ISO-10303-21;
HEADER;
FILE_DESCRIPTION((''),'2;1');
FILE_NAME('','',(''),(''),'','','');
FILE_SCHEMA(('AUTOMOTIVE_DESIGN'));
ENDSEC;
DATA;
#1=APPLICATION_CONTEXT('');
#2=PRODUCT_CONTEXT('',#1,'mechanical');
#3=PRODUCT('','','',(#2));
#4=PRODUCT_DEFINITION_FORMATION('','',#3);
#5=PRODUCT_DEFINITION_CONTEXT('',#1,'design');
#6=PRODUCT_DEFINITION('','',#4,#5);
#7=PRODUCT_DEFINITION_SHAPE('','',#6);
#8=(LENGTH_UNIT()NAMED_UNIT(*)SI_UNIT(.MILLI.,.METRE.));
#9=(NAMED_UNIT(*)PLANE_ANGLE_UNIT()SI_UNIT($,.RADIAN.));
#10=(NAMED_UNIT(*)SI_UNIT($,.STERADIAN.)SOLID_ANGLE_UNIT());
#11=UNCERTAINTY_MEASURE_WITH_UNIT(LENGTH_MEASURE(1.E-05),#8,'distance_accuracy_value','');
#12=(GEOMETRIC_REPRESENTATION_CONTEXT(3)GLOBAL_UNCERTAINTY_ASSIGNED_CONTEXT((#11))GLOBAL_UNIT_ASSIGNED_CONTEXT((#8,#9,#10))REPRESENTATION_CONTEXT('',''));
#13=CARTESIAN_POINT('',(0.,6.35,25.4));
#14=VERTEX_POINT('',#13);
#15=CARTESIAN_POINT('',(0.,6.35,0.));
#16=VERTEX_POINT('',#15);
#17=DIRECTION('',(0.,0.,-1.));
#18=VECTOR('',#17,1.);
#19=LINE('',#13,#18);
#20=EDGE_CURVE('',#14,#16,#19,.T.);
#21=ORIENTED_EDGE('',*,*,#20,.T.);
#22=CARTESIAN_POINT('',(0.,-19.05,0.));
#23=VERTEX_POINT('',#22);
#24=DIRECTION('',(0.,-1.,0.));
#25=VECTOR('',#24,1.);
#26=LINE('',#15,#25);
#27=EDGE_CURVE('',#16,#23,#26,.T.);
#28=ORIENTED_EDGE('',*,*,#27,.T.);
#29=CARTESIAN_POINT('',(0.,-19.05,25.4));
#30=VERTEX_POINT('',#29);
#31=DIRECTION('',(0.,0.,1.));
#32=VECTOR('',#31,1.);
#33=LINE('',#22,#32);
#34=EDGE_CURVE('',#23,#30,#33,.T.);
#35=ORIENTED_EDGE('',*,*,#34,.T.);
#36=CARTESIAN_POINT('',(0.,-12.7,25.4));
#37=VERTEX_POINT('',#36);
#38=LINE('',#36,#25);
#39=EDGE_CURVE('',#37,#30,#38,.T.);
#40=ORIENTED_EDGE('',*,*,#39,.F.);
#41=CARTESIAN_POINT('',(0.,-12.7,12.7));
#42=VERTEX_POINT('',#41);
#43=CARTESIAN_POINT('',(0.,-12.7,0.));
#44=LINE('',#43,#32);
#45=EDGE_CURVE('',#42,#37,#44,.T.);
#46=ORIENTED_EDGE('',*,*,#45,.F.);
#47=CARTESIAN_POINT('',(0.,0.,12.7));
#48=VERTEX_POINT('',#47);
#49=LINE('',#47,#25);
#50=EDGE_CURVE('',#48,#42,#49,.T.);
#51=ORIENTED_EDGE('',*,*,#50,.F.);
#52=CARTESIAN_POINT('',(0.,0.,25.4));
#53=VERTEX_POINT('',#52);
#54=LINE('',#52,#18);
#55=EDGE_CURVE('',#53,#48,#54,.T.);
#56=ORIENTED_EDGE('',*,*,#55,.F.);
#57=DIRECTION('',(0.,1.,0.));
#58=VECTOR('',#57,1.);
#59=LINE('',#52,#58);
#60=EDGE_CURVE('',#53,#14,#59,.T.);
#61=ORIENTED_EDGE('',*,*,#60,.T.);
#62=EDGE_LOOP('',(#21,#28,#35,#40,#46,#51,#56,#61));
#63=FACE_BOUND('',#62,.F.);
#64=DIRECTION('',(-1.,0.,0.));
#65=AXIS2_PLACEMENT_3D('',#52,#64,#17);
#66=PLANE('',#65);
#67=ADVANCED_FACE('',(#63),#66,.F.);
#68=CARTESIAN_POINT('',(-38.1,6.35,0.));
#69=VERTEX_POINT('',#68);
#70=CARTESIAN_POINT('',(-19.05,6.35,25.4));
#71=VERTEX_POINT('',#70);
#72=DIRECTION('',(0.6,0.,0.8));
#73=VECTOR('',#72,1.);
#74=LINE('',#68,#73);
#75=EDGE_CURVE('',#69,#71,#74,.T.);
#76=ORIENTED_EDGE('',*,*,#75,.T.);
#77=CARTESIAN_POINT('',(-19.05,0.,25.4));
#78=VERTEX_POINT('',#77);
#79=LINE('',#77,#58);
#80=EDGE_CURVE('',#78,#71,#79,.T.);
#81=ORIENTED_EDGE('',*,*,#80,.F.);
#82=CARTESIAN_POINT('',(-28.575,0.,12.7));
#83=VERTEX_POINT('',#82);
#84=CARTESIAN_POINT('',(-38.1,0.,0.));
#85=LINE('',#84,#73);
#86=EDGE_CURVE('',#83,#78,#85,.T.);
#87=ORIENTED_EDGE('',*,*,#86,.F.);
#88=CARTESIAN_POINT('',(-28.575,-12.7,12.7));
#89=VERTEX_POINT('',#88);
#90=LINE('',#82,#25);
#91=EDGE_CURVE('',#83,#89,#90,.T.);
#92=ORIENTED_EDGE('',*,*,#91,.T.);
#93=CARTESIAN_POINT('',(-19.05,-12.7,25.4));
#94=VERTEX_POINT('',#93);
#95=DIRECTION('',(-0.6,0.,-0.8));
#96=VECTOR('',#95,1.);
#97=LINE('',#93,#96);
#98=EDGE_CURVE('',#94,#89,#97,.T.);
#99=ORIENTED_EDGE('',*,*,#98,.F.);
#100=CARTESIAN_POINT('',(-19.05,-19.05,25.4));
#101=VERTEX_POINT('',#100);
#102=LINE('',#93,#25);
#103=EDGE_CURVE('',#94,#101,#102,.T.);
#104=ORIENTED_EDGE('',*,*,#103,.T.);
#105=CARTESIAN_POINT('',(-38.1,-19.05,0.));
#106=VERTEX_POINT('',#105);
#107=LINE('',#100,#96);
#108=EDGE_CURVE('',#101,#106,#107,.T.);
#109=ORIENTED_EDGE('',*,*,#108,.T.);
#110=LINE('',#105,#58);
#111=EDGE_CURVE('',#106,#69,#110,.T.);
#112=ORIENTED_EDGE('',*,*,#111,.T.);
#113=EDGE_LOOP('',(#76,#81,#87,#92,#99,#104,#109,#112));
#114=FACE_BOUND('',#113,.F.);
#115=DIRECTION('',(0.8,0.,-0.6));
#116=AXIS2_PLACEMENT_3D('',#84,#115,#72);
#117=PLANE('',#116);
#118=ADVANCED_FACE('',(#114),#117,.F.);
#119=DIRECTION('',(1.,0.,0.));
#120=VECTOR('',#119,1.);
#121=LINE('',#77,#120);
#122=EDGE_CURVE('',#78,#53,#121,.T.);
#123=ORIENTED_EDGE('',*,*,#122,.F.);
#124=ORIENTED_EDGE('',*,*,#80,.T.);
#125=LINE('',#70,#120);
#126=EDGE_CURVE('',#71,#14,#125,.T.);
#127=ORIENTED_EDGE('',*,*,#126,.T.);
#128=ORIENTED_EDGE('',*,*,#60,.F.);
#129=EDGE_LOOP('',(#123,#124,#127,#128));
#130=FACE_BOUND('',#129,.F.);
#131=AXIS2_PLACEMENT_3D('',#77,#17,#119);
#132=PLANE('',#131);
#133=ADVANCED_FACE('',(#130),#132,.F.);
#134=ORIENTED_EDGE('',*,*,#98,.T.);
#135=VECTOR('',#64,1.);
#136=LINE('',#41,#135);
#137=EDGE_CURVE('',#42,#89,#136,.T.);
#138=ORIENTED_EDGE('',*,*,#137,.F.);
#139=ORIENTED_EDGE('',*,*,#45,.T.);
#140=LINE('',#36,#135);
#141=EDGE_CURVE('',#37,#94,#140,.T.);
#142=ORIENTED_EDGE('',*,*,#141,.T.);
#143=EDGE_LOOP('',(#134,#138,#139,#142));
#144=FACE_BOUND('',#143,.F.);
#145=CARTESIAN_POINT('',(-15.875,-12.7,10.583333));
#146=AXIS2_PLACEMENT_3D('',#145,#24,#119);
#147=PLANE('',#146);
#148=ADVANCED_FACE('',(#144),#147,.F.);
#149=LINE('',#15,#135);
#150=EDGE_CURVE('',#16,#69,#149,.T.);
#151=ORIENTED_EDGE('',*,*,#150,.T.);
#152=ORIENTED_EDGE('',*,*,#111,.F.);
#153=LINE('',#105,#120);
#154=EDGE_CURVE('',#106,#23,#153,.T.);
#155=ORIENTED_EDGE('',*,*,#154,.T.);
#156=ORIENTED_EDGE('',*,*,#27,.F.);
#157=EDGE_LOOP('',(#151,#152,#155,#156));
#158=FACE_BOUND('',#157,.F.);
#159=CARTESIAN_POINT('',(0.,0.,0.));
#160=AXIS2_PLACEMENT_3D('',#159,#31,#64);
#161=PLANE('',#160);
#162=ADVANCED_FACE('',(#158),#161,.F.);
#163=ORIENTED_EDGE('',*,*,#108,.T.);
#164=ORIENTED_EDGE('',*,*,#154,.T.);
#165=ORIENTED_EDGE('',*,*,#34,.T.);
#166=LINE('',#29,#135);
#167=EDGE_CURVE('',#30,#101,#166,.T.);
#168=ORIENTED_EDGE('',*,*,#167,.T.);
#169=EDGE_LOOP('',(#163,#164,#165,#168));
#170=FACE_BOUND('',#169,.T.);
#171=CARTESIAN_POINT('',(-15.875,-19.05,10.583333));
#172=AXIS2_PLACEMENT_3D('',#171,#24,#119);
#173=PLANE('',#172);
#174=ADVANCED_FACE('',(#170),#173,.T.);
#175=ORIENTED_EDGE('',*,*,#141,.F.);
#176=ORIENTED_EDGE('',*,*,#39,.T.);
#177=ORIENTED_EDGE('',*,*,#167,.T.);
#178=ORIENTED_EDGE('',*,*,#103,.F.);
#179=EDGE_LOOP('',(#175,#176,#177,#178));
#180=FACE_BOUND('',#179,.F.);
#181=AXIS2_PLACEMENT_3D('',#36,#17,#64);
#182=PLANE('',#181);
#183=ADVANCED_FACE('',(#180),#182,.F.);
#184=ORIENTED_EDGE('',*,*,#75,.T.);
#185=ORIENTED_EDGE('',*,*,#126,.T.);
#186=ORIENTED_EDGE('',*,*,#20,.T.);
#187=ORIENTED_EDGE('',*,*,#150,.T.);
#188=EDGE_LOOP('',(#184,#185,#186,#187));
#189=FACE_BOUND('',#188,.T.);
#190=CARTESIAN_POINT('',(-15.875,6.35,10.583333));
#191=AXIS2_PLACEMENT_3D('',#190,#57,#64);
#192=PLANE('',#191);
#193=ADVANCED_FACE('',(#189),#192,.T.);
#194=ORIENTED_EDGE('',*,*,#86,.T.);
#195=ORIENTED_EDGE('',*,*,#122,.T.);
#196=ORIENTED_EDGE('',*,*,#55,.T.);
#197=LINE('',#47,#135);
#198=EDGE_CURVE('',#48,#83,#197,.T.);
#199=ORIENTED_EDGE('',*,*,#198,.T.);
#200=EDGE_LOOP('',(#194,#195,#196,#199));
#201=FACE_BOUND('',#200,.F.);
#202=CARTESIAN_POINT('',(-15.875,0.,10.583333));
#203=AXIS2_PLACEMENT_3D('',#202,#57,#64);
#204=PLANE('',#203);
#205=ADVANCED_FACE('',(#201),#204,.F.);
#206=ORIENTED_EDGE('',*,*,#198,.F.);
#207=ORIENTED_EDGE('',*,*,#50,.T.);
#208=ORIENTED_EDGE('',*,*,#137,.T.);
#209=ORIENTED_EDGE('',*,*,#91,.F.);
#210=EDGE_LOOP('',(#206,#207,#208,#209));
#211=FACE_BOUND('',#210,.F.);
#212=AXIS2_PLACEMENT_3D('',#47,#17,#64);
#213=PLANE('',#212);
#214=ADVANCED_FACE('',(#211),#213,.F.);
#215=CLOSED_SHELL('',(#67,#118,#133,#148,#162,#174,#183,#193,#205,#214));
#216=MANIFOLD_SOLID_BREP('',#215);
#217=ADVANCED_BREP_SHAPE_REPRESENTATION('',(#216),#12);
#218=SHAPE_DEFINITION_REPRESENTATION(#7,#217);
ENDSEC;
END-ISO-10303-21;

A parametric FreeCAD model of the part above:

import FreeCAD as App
import Part
import Sketcher
Q = App.Units.Quantity

doc = App.newDocument("Part")
body = doc.addObject("PartDesign::Body", "Body")

# Sketch on XZ plane
sketch1 = body.newObject("Sketcher::SketchObject", "Sketch")
sketch1.AttachmentSupport = (doc.getObject("XZ_Plane"), [""])
sketch1.MapMode = "FlatFace"
sketch1.addGeometry(Part.LineSegment(App.Vector(-38.1, 0, 0), App.Vector(0, 0, 0)), False)
sketch1.addGeometry(Part.LineSegment(App.Vector(0, 0, 0), App.Vector(0, 12.7, 0)), False)
sketch1.addGeometry(Part.LineSegment(App.Vector(0, 12.7, 0), App.Vector(-28.575, 12.7, 0)), False)
sketch1.addGeometry(Part.LineSegment(App.Vector(-28.575, 12.7, 0), App.Vector(-38.1, 0, 0)), False)
sketch1.addConstraint(Sketcher.Constraint("Coincident", 0, 2, 1, 1))
sketch1.addConstraint(Sketcher.Constraint("Coincident", 1, 2, 2, 1))
sketch1.addConstraint(Sketcher.Constraint("Coincident", 2, 2, 3, 1))
sketch1.addConstraint(Sketcher.Constraint("Coincident", 3, 2, 0, 1))
sketch1.addConstraint(Sketcher.Constraint("Horizontal", 0))
sketch1.addConstraint(Sketcher.Constraint("Vertical", 1))
sketch1.addConstraint(Sketcher.Constraint("Horizontal", 2))
sketch1.addConstraint(Sketcher.Constraint("Coincident", 0, 2, -1, 1))
sketch1.addConstraint(Sketcher.Constraint("DistanceX", 0, 1, 0, 2, Q("1.5 in")))
sketch1.addConstraint(Sketcher.Constraint("DistanceY", 1, 1, 1, 2, Q("0.5 in")))
sketch1.addConstraint(Sketcher.Constraint("DistanceX", 2, 2, 2, 1, Q("1.125 in")))
pad1 = body.newObject("PartDesign::Pad", "Pad")
pad1.Profile = sketch1
pad1.Length = Q("0.5 in")

# Sketch on XZ plane
sketch2 = body.newObject("Sketcher::SketchObject", "Sketch001")
sketch2.AttachmentSupport = (doc.getObject("XZ_Plane"), [""])
sketch2.MapMode = "FlatFace"
sketch2.AttachmentOffset = App.Placement(App.Vector(0, 0, 0.5 * 25.4), App.Rotation())
sketch2.addGeometry(Part.LineSegment(App.Vector(-19.05, 25.4, 0), App.Vector(-38.1, 0, 0)), False)
sketch2.addGeometry(Part.LineSegment(App.Vector(-38.1, 0, 0), App.Vector(0, 0, 0)), False)
sketch2.addGeometry(Part.LineSegment(App.Vector(0, 0, 0), App.Vector(0, 25.4, 0)), False)
sketch2.addGeometry(Part.LineSegment(App.Vector(0, 25.4, 0), App.Vector(-19.05, 25.4, 0)), False)
sketch2.addConstraint(Sketcher.Constraint("Coincident", 0, 2, 1, 1))
sketch2.addConstraint(Sketcher.Constraint("Coincident", 1, 2, 2, 1))
sketch2.addConstraint(Sketcher.Constraint("Coincident", 2, 2, 3, 1))
sketch2.addConstraint(Sketcher.Constraint("Coincident", 3, 2, 0, 1))
sketch2.addConstraint(Sketcher.Constraint("Horizontal", 1))
sketch2.addConstraint(Sketcher.Constraint("Vertical", 2))
sketch2.addConstraint(Sketcher.Constraint("Horizontal", 3))
sketch2.addConstraint(Sketcher.Constraint("Coincident", 1, 2, -1, 1))
sketch2.addConstraint(Sketcher.Constraint("DistanceY", 2, 1, 2, 2, Q("1 in")))
sketch2.addConstraint(Sketcher.Constraint("DistanceX", 1, 1, 1, 2, Q("1.5 in")))
sketch2.addConstraint(Sketcher.Constraint("DistanceX", 3, 2, 3, 1, Q("0.75 in")))
pad2 = body.newObject("PartDesign::Pad", "Pad001")
pad2.Profile = sketch2
pad2.Length = Q("0.25 in")

# Sketch on XZ plane
sketch3 = body.newObject("Sketcher::SketchObject", "Sketch002")
sketch3.AttachmentSupport = (doc.getObject("XZ_Plane"), [""])
sketch3.MapMode = "FlatFace"
sketch3.addGeometry(Part.LineSegment(App.Vector(0, 0, 0), App.Vector(-38.1, 0, 0)), False)
sketch3.addGeometry(Part.LineSegment(App.Vector(-38.1, 0, 0), App.Vector(-19.05, 25.4, 0)), False)
sketch3.addGeometry(Part.LineSegment(App.Vector(-19.05, 25.4, 0), App.Vector(0, 25.4, 0)), False)
sketch3.addGeometry(Part.LineSegment(App.Vector(0, 25.4, 0), App.Vector(0, 0, 0)), False)
sketch3.addConstraint(Sketcher.Constraint("Coincident", 0, 2, 1, 1))
sketch3.addConstraint(Sketcher.Constraint("Coincident", 1, 2, 2, 1))
sketch3.addConstraint(Sketcher.Constraint("Coincident", 2, 2, 3, 1))
sketch3.addConstraint(Sketcher.Constraint("Coincident", 3, 2, 0, 1))
sketch3.addConstraint(Sketcher.Constraint("Horizontal", 0))
sketch3.addConstraint(Sketcher.Constraint("Horizontal", 2))
sketch3.addConstraint(Sketcher.Constraint("Vertical", 3))
sketch3.addConstraint(Sketcher.Constraint("Coincident", 3, 2, -1, 1))
sketch3.addConstraint(Sketcher.Constraint("DistanceY", 3, 2, 3, 1, Q("1 in")))
sketch3.addConstraint(Sketcher.Constraint("DistanceX", 0, 2, 0, 1, Q("1.5 in")))
sketch3.addConstraint(Sketcher.Constraint("DistanceX", 2, 1, 2, 2, Q("0.75 in")))
pad3 = body.newObject("PartDesign::Pad", "Pad002")
pad3.Profile = sketch3
pad3.Length = Q("0.25 in")
pad3.Reversed = True

doc.recompute()
